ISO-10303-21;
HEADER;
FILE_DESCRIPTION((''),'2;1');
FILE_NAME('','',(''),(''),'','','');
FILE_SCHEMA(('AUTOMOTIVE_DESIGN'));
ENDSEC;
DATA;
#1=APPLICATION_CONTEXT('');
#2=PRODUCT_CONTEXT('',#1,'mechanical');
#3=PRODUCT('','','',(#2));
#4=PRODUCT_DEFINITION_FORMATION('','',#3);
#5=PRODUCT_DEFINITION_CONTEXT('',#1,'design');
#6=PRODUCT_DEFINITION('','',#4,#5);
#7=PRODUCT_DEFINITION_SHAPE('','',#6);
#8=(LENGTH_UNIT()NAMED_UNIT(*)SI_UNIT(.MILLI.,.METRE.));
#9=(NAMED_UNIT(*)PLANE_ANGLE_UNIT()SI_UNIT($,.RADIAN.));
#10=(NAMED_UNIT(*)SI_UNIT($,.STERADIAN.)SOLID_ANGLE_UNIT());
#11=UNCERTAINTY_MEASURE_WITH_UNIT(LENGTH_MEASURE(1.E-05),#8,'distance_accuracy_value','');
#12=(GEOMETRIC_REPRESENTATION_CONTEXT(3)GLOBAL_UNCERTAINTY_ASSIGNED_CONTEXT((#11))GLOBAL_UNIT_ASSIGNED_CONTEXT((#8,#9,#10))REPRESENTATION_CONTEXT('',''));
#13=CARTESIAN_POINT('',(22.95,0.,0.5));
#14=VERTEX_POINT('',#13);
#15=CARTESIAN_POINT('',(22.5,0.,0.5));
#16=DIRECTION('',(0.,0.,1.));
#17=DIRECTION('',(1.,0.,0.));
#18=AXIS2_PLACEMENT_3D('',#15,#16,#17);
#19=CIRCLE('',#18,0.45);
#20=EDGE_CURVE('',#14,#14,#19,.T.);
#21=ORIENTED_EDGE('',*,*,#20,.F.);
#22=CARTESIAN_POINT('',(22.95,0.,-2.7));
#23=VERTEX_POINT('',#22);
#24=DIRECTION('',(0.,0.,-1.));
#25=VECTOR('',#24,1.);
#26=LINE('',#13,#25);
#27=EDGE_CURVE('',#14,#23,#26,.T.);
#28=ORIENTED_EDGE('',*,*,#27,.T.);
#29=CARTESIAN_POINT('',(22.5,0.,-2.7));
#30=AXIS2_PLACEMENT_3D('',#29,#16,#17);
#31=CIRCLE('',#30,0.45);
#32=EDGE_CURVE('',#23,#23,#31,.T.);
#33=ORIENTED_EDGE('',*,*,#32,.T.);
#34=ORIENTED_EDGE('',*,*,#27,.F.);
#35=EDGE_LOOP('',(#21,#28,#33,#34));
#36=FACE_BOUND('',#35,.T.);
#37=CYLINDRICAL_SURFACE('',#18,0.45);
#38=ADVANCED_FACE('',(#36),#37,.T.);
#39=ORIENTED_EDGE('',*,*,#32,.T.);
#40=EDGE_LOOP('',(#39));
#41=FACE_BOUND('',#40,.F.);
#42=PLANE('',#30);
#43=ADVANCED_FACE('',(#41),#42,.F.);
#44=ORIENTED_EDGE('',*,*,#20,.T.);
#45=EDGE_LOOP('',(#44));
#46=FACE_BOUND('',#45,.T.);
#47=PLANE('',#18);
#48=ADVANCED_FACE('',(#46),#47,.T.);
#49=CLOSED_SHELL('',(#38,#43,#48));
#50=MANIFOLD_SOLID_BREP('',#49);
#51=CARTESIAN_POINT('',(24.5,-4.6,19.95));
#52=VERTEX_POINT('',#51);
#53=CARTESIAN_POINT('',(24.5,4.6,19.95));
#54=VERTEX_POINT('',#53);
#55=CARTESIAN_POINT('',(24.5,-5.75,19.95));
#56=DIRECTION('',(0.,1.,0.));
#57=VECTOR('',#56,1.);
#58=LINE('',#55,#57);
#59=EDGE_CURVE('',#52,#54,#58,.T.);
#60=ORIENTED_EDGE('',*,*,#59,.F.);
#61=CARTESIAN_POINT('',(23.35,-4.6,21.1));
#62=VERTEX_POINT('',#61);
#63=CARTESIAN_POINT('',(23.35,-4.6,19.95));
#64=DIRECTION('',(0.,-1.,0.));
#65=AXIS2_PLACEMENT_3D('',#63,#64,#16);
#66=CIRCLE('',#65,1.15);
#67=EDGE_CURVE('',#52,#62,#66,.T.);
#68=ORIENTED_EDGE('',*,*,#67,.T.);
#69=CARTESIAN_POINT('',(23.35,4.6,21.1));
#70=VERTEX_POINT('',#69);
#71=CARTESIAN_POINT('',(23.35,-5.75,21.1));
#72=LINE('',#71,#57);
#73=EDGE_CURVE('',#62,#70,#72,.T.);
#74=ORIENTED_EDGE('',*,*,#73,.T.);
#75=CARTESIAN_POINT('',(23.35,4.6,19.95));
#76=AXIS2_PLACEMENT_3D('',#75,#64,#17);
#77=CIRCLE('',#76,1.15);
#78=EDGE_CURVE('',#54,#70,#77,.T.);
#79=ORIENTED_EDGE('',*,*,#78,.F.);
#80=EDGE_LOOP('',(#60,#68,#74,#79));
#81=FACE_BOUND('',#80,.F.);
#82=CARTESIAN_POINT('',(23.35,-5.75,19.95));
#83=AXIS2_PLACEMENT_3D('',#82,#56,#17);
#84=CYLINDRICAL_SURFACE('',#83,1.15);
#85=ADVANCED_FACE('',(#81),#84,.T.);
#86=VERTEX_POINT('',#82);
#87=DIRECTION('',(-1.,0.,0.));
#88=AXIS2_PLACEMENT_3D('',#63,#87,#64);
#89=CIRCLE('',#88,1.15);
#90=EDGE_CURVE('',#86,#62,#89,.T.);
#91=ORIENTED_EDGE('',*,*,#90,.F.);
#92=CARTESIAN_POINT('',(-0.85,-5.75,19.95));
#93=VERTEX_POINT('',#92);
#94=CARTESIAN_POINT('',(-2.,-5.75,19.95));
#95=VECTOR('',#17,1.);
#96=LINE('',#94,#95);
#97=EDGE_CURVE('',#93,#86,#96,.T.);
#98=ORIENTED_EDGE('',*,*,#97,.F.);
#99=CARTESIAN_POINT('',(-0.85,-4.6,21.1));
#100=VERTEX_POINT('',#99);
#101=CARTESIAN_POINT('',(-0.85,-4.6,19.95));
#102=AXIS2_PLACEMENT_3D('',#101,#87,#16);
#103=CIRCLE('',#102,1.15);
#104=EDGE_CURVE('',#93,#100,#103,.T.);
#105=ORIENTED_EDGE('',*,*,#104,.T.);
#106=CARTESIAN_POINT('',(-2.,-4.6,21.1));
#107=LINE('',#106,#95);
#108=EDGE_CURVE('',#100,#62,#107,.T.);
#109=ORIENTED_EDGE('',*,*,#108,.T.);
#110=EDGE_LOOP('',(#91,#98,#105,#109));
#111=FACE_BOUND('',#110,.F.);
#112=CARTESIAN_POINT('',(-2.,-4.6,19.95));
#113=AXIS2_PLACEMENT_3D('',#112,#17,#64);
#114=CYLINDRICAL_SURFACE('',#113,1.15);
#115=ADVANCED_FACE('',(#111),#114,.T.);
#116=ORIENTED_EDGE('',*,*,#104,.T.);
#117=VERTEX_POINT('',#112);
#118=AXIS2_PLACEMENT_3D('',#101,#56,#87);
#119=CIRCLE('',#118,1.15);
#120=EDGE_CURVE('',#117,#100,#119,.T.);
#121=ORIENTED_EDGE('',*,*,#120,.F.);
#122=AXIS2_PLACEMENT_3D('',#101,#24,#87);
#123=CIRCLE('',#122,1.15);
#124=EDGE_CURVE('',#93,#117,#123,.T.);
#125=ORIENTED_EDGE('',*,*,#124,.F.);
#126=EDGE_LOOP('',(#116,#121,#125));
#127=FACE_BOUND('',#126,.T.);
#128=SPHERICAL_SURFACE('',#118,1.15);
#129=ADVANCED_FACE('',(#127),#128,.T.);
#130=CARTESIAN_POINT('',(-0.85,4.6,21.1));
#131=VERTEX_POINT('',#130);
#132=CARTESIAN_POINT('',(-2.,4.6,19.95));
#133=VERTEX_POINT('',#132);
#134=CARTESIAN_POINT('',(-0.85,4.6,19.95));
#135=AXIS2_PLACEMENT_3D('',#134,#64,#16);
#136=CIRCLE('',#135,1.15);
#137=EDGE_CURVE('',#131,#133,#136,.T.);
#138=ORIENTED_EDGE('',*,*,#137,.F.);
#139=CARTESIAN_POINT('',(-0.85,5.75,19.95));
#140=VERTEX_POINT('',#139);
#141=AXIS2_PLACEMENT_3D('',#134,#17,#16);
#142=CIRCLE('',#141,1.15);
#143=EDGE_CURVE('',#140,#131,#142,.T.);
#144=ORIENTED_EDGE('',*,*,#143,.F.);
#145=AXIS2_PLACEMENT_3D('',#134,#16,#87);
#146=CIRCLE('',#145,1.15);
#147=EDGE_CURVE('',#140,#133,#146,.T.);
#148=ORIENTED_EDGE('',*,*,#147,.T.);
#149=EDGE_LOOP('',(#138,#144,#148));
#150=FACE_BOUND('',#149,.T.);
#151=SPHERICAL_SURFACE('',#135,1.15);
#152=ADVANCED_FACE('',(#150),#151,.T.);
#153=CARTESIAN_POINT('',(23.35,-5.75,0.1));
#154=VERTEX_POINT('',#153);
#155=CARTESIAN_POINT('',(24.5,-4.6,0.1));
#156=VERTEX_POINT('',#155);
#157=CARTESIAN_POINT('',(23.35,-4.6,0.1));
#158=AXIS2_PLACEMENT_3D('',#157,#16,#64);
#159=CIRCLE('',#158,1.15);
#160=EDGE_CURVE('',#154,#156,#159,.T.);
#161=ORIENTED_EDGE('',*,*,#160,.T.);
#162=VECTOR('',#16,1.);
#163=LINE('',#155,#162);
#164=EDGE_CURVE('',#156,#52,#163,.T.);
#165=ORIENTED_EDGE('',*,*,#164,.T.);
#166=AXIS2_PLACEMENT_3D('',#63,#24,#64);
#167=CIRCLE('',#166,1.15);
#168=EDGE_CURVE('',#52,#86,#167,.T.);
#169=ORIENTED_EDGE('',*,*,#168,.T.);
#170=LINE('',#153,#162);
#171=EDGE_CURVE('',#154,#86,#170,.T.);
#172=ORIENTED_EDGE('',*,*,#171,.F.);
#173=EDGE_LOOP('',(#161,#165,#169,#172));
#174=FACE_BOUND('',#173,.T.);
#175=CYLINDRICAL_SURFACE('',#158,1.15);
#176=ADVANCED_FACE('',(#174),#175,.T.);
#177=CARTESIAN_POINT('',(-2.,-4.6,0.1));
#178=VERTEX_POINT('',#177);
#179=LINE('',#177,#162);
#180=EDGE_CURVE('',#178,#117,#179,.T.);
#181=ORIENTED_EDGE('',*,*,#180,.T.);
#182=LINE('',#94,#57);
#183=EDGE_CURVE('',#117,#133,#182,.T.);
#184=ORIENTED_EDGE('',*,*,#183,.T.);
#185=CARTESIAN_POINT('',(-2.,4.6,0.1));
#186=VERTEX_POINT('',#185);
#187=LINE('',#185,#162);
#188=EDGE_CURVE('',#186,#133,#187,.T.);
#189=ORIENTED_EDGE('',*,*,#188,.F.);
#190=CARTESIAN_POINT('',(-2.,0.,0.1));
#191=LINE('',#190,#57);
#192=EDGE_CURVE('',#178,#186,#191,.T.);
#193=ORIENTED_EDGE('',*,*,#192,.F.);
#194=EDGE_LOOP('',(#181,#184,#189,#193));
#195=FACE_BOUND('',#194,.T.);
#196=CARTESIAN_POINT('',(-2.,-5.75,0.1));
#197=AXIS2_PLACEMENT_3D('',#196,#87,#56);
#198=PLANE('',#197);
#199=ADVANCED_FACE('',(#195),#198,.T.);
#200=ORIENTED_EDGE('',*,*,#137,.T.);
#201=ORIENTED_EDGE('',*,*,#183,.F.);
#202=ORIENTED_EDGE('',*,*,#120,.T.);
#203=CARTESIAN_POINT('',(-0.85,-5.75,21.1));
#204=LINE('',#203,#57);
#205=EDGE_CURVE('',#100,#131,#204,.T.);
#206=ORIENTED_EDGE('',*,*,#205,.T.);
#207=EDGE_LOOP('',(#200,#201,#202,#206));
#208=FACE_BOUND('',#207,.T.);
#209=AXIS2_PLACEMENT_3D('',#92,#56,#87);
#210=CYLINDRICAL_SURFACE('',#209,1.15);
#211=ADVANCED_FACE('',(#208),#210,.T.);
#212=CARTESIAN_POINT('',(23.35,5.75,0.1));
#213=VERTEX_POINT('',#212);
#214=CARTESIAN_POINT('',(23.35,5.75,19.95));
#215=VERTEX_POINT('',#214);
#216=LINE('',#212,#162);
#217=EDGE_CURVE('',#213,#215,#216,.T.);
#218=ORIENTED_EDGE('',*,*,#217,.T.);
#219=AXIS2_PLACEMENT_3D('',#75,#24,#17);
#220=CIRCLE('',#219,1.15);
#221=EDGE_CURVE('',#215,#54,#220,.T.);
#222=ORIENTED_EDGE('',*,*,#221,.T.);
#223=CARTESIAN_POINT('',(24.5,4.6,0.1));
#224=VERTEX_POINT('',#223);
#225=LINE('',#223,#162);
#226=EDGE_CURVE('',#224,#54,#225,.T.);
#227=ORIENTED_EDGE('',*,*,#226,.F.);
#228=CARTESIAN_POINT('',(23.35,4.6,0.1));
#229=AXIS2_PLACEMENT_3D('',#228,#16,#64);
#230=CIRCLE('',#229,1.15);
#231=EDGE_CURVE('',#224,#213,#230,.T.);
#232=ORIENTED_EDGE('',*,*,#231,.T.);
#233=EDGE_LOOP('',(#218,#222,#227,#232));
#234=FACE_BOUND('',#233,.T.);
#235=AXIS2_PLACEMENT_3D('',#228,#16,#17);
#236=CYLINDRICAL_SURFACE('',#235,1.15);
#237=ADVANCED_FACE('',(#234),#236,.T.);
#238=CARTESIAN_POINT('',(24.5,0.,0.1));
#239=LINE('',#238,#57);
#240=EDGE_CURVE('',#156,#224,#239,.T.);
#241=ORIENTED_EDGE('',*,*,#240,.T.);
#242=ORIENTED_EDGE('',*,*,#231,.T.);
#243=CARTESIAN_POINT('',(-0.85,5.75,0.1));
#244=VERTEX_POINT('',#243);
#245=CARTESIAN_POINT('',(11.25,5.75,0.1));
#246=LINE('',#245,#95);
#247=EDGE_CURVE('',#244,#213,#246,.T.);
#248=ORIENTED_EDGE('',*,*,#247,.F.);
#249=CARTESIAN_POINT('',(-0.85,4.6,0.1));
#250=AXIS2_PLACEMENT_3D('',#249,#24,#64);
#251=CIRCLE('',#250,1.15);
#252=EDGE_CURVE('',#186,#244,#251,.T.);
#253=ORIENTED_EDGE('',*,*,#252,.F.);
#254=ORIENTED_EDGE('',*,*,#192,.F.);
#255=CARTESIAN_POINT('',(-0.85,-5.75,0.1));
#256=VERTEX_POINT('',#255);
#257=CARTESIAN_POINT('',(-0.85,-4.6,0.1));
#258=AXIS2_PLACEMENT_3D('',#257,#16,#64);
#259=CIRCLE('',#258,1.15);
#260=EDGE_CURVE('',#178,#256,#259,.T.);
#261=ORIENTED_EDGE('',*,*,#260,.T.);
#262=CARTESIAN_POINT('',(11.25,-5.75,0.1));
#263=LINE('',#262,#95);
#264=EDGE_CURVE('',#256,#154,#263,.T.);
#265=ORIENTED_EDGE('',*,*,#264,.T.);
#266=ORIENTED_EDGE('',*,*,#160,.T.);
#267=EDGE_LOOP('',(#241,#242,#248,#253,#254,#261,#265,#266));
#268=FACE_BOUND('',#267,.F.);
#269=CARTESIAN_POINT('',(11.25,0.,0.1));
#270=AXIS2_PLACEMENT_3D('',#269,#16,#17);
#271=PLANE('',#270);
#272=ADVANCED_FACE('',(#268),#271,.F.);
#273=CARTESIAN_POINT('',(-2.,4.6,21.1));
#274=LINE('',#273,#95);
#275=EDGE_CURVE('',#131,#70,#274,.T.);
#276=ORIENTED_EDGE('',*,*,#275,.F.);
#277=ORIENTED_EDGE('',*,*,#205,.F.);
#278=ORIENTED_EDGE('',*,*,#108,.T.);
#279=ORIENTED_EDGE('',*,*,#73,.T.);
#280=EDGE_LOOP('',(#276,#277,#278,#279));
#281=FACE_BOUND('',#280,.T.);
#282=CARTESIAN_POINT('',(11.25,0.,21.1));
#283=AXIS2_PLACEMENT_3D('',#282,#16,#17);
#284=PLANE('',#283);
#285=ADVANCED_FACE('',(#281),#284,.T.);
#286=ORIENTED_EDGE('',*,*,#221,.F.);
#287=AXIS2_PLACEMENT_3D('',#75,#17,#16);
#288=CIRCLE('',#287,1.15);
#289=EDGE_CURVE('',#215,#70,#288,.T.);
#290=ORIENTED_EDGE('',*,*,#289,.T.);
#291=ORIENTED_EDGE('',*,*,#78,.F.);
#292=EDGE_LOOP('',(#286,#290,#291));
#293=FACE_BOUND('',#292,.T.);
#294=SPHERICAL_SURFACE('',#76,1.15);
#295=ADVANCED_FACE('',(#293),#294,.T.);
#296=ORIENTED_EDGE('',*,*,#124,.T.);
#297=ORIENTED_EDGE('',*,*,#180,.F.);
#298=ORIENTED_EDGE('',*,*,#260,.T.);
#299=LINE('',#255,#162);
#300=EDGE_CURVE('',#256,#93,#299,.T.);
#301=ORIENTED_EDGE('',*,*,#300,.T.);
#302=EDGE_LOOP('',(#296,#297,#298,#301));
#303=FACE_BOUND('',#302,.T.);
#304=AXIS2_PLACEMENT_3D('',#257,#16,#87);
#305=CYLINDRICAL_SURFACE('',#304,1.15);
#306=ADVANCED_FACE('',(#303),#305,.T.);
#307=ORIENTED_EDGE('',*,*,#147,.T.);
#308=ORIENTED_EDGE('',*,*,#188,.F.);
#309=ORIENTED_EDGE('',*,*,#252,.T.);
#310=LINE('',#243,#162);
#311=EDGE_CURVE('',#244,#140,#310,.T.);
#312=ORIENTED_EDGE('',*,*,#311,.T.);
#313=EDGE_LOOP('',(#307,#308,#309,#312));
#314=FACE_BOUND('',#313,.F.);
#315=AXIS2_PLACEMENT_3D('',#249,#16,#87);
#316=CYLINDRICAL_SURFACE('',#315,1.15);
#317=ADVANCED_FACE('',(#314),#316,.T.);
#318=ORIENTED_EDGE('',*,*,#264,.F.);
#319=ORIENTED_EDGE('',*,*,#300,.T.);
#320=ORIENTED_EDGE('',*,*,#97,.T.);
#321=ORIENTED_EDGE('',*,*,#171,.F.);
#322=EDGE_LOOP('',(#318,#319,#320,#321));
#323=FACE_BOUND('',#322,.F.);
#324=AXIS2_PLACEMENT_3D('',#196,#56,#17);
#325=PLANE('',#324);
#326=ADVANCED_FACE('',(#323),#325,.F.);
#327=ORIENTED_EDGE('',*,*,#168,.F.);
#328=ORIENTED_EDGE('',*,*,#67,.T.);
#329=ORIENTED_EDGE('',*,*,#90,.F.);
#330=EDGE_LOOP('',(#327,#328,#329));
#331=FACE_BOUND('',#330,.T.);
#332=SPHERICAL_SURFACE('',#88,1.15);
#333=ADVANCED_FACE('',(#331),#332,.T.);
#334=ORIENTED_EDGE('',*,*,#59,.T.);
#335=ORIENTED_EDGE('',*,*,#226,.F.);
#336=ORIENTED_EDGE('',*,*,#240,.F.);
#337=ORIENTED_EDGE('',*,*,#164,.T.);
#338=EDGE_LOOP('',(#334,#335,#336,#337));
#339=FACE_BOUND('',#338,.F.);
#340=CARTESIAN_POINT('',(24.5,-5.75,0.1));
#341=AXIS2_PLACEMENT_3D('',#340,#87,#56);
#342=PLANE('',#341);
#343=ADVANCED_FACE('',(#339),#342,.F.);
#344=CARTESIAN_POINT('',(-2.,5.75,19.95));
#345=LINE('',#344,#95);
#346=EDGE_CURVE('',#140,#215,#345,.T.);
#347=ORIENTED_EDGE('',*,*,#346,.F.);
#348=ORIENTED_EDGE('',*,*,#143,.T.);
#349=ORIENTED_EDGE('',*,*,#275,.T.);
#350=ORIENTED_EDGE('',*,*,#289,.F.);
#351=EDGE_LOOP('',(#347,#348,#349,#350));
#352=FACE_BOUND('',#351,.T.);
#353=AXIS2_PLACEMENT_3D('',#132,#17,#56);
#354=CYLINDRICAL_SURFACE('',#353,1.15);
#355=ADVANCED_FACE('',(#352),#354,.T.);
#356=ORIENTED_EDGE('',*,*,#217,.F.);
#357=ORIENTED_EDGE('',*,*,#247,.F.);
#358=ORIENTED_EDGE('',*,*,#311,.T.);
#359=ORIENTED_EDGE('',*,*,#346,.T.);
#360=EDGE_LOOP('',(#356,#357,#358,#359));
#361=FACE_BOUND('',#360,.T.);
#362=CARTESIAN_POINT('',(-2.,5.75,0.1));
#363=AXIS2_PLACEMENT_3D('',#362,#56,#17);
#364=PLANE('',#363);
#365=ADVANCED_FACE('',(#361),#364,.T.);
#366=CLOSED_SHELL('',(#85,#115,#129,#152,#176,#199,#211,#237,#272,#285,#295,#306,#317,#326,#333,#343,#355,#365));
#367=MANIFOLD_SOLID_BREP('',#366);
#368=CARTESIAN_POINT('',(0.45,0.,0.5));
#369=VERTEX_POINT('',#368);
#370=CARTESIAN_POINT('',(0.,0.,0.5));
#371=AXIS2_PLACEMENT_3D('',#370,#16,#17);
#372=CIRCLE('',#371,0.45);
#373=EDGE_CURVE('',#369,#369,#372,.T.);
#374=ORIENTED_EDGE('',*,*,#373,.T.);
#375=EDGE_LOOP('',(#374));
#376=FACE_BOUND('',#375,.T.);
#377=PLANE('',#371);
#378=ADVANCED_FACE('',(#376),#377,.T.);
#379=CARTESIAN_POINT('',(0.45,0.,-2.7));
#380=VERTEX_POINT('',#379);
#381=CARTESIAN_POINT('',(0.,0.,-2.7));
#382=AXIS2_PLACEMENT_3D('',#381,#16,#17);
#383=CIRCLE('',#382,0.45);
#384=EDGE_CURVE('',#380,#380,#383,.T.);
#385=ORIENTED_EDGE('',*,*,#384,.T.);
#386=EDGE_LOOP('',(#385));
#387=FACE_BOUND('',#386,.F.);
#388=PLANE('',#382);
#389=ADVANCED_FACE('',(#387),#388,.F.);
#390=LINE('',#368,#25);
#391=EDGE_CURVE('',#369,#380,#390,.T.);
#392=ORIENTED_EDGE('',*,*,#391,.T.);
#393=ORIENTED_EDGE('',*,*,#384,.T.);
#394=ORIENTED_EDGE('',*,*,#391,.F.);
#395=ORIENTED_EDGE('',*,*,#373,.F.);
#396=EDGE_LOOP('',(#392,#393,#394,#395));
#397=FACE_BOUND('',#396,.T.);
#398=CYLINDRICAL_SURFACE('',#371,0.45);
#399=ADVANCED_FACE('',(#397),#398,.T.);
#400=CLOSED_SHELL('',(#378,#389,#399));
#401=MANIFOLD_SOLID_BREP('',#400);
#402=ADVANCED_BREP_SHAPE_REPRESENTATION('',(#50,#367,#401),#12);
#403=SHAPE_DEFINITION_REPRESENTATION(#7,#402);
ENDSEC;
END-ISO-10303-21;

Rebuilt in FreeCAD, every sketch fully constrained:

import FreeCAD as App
import Part
import Sketcher
from FreeCAD import Vector


def edges_at(feature, points):
    """Names of the edges that pass closest to the given points."""
    edges = feature.Shape.Edges
    near = lambda p: min(range(len(edges)), key=lambda i: edges[i].distToShape(Part.Vertex(*p))[0])
    return sorted({f"Edge{near(p) + 1}" for p in points})


def add_polygon(sketch, points):
    """Adds a closed chain of lines whose ends are joined by coincident constraints."""
    first, n = sketch.GeometryCount, len(points)
    for a, b in zip(points, points[1:] + points[:1]):
        sketch.addGeometry(Part.LineSegment(App.Vector(*a, 0), App.Vector(*b, 0)), False)
    for i in range(n):
        sketch.addConstraint(Sketcher.Constraint("Coincident", first + i, 2, first + (i + 1) % n, 1))

doc = App.newDocument("Part")
body = doc.addObject("PartDesign::Body", "Body")

# Sketch on XY plane
sketch1 = body.newObject("Sketcher::SketchObject", "Sketch")
sketch1.AttachmentSupport = (doc.getObject("XY_Plane"), [""])
sketch1.MapMode = "FlatFace"
sketch1.AttachmentOffset = App.Placement(Vector(0, 0, 0.1), App.Rotation())
add_polygon(sketch1, [(-2, 5.75), (-2, -5.75), (24.5, -5.75), (24.5, 5.75)])  # lines 0-3
sketch1.addConstraint(Sketcher.Constraint("Vertical", 0))
sketch1.addConstraint(Sketcher.Constraint("Horizontal", 1))
sketch1.addConstraint(Sketcher.Constraint("Vertical", 2))
sketch1.addConstraint(Sketcher.Constraint("Horizontal", 3))
sketch1.addConstraint(Sketcher.Constraint("DistanceX", 1, 1, 1, 2, 26.5))
sketch1.addConstraint(Sketcher.Constraint("DistanceY", 0, 2, 0, 1, 11.5))
sketch1.addConstraint(Sketcher.Constraint("DistanceX", 0, 2, -1, 1, 2.0))
sketch1.addConstraint(Sketcher.Constraint("DistanceY", 0, 2, -1, 1, 5.75))
pad1 = body.newObject("PartDesign::Pad", "Pad")
pad1.Profile = sketch1
pad1.Length = 21
doc.recompute()

fillet = body.newObject("PartDesign::Fillet", "Fillet")
fillet.Base = (pad1, edges_at(pad1, [
    (-2, 0, 21.1),
    (-2, -5.75, 10.6),
    (11.25, -5.75, 21.1),
    (24.5, -5.75, 10.6),
    (24.5, 0, 21.1),
    (24.5, 5.75, 10.6),
    (11.25, 5.75, 21.1),
    (-2, 5.75, 10.6),
]))
fillet.Radius = 1.15
body2 = doc.addObject("PartDesign::Body", "Body001")
body2.AllowCompound = True

# Sketch on XY plane
sketch2 = body2.newObject("Sketcher::SketchObject", "Sketch001")
sketch2.AttachmentSupport = (doc.getObject("XY_Plane001"), [""])
sketch2.MapMode = "FlatFace"
sketch2.AttachmentOffset = App.Placement(Vector(0, 0, 0.5), App.Rotation())
sketch2.addGeometry(Part.Circle(Vector(0, 0, 0), Vector(0, 0, 1), 0.45), False)
sketch2.addGeometry(Part.Circle(Vector(22.5, 0, 0), Vector(0, 0, 1), 0.45), False)
sketch2.addConstraint(Sketcher.Constraint("Coincident", 0, 3, -1, 1))
sketch2.addConstraint(Sketcher.Constraint("Equal", 0, 1))
sketch2.addConstraint(Sketcher.Constraint("PointOnObject", 1, 3, -1))
sketch2.addConstraint(Sketcher.Constraint("Diameter", 0, 0.9))
sketch2.addConstraint(Sketcher.Constraint("DistanceX", -1, 1, 1, 3, 22.5))
pad2 = body2.newObject("PartDesign::Pad", "Pad001")
pad2.Profile = sketch2
pad2.Length = 3.2
pad2.Reversed = True

doc.recompute()
